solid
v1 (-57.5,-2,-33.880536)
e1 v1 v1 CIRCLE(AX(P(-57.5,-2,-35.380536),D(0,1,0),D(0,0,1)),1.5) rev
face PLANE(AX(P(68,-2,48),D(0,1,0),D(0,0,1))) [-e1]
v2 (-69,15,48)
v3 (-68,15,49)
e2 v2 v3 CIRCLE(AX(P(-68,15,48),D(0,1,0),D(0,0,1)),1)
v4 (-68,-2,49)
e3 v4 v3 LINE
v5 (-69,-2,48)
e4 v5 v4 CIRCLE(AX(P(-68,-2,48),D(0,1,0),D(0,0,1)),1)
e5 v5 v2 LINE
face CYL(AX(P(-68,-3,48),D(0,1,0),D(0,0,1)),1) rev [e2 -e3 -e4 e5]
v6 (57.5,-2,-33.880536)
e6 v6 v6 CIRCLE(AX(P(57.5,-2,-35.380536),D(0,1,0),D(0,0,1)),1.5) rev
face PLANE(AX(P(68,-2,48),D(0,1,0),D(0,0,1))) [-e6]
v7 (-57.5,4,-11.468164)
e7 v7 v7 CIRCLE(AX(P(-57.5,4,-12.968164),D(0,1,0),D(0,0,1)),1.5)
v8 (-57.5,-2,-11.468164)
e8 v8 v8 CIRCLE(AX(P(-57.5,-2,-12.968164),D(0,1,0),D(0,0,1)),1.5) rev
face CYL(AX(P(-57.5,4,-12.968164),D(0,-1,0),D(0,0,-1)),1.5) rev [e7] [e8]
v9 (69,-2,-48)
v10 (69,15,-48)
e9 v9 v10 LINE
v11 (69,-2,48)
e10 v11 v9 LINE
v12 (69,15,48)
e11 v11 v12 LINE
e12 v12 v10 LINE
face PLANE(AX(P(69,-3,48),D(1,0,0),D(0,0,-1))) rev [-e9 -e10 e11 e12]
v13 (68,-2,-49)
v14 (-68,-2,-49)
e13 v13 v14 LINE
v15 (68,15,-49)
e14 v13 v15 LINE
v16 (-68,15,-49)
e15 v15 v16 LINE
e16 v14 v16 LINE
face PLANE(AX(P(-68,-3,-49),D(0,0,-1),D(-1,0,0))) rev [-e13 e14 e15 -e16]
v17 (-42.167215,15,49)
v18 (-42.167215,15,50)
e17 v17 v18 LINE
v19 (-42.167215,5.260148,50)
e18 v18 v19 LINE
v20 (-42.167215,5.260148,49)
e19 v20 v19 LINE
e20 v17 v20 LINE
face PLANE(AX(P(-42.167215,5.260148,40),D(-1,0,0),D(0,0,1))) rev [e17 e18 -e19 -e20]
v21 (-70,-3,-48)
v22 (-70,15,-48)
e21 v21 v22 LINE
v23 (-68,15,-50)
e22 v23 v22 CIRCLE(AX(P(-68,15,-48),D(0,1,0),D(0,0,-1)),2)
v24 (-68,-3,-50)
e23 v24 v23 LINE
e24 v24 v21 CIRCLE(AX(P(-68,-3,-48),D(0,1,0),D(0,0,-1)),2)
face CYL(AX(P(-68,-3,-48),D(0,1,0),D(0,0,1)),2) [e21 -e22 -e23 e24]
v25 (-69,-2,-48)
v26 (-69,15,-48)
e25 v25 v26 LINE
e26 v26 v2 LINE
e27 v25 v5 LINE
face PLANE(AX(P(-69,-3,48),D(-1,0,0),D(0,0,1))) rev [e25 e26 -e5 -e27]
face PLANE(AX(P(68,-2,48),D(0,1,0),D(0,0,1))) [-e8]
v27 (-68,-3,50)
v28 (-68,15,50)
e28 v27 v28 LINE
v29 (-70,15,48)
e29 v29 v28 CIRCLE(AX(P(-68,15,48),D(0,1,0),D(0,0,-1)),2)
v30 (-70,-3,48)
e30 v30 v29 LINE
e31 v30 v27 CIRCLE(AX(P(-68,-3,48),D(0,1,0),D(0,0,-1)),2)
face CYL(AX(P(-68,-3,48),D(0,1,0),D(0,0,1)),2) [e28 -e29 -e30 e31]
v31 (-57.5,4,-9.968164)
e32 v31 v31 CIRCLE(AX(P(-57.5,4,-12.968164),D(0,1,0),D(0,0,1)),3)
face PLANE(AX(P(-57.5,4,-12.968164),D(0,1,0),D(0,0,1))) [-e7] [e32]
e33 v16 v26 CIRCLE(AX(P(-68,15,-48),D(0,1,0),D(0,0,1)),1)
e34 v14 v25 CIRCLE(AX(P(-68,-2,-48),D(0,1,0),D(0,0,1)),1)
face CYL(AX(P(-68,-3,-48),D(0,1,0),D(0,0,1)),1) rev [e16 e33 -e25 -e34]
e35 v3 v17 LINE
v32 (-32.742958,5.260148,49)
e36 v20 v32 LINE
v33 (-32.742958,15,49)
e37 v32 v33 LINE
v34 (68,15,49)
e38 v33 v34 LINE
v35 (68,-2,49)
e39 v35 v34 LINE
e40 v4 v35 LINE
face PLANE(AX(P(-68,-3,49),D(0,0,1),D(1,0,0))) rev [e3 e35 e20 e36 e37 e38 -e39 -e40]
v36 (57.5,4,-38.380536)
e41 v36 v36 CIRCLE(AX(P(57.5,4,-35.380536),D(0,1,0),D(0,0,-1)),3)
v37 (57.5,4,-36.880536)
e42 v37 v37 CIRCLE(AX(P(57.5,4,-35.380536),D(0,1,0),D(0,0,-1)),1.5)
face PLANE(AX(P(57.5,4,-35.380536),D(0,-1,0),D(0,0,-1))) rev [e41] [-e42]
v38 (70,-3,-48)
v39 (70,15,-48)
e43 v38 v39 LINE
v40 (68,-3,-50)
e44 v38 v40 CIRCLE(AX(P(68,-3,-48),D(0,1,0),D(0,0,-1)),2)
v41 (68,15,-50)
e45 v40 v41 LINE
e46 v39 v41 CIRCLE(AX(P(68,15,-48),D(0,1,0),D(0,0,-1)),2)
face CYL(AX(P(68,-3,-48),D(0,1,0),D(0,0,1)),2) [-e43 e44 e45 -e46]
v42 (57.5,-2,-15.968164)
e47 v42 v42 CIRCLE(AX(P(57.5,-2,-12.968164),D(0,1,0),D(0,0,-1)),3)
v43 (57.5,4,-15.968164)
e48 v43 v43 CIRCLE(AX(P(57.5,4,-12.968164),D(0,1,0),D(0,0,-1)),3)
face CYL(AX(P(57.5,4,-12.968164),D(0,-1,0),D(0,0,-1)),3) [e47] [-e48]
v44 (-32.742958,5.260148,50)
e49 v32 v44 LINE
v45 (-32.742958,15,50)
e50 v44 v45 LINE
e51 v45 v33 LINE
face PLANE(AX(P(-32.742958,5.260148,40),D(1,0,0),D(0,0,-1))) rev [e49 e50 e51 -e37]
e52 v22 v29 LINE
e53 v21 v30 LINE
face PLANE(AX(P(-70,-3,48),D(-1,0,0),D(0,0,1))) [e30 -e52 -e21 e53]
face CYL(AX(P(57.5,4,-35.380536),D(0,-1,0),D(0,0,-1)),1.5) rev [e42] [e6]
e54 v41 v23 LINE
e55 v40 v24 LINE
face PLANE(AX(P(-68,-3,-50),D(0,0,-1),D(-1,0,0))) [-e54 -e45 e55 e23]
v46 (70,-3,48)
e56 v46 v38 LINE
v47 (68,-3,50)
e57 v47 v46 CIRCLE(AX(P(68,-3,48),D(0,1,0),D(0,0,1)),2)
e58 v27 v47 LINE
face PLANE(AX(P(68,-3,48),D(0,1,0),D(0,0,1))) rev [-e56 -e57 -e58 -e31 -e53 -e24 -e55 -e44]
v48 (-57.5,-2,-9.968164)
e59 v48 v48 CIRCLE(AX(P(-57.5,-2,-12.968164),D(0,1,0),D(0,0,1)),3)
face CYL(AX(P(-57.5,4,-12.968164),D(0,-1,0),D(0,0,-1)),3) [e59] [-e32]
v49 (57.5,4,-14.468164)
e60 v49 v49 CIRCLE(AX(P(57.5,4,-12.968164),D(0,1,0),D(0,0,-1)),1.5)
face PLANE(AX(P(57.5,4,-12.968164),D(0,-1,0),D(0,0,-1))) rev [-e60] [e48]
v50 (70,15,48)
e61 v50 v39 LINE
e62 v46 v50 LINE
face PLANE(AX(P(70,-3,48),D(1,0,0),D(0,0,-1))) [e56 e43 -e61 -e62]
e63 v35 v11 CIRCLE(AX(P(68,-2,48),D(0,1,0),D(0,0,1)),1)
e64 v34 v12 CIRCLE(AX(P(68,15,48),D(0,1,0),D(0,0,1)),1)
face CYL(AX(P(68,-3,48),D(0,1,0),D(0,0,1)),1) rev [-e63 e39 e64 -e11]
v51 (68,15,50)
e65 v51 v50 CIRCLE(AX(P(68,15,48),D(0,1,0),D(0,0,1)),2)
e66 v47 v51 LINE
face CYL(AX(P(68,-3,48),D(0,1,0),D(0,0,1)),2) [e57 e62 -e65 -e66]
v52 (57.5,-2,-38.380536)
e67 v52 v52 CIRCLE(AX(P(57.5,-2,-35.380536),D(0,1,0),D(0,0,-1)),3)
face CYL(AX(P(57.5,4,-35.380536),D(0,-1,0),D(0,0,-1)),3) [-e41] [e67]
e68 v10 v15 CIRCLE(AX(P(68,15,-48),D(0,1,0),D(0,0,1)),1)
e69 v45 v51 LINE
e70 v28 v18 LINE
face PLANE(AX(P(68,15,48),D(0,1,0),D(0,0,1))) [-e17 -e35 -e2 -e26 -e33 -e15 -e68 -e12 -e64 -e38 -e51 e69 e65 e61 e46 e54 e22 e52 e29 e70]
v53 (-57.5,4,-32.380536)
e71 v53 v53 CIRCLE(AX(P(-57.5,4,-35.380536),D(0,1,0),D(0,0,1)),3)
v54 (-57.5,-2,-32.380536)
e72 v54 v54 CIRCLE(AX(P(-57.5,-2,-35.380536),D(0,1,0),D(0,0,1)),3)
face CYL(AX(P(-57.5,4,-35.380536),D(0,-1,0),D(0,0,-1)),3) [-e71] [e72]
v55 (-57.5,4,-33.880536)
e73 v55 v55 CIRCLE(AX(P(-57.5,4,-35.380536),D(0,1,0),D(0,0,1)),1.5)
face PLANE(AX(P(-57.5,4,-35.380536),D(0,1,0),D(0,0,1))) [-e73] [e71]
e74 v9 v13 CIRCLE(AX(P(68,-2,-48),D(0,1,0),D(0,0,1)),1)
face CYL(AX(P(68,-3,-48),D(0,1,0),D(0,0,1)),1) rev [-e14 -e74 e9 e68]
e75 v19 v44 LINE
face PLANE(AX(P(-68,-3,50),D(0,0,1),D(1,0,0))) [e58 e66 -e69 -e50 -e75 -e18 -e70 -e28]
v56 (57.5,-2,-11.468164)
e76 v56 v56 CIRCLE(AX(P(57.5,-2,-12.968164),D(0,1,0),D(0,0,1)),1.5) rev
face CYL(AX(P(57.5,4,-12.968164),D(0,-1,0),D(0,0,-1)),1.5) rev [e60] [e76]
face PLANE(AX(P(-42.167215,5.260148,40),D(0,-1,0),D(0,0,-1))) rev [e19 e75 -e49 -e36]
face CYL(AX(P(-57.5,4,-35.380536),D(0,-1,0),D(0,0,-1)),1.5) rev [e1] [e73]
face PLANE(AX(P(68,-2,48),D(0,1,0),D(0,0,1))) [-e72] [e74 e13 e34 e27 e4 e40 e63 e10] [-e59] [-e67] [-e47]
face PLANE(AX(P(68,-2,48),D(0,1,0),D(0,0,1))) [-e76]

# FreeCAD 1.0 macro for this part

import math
import FreeCAD as App
import Part
import Sketcher
from FreeCAD import Vector


def faces_at(feature, points):
    """Names of the faces that lie closest to the given points."""
    faces = feature.Shape.Faces
    near = lambda p: min(range(len(faces)), key=lambda i: faces[i].distToShape(Part.Vertex(*p))[0])
    return sorted({f"Face{near(p) + 1}" for p in points})


def add_polygon(sketch, points):
    """Adds a closed chain of lines whose ends are joined by coincident constraints."""
    first, n = sketch.GeometryCount, len(points)
    for a, b in zip(points, points[1:] + points[:1]):
        sketch.addGeometry(Part.LineSegment(App.Vector(*a, 0), App.Vector(*b, 0)), False)
    for i in range(n):
        sketch.addConstraint(Sketcher.Constraint("Coincident", first + i, 2, first + (i + 1) % n, 1))

doc = App.newDocument("Part")
body = doc.addObject("PartDesign::Body", "Body")

sketch1 = body.newObject("Sketcher::SketchObject", "Sketch")
sketch1.AttachmentSupport = (doc.getObject("XZ_Plane"), [""])
sketch1.MapMode = "FlatFace"
sketch1.addGeometry([
    Part.LineSegment(Vector(-68, 50, 0), Vector(68, 50, 0)),
    Part.ArcOfCircle(Part.Circle(Vector(68, 48, 0), Vector(0, 0, 1), 2), math.radians(0), math.radians(90)),
    Part.LineSegment(Vector(70, 48, 0), Vector(70, -48, 0)),
    Part.ArcOfCircle(Part.Circle(Vector(68, -48, 0), Vector(0, 0, 1), 2), math.radians(-90), math.radians(0)),
    Part.LineSegment(Vector(68, -50, 0), Vector(-68, -50, 0)),
    Part.ArcOfCircle(Part.Circle(Vector(-68, -48, 0), Vector(0, 0, 1), 2), math.radians(-180), math.radians(-90)),
    Part.LineSegment(Vector(-70, -48, 0), Vector(-70, 48, 0)),
    Part.ArcOfCircle(Part.Circle(Vector(-68, 48, 0), Vector(0, 0, 1), 2), math.radians(90), math.radians(180)),
], False)
sketch1.addConstraint([
    Sketcher.Constraint("Tangent", 0, 2, 1, 2),
    Sketcher.Constraint("Tangent", 1, 1, 2, 1),
    Sketcher.Constraint("Tangent", 2, 2, 3, 2),
    Sketcher.Constraint("Tangent", 3, 1, 4, 1),
    Sketcher.Constraint("Tangent", 4, 2, 5, 2),
    Sketcher.Constraint("Tangent", 5, 1, 6, 1),
    Sketcher.Constraint("Tangent", 6, 2, 7, 2),
    Sketcher.Constraint("Tangent", 7, 1, 0, 1),
    Sketcher.Constraint("Horizontal", 0),
    Sketcher.Constraint("Vertical", 2),
    Sketcher.Constraint("Horizontal", 4),
    Sketcher.Constraint("Vertical", 6),
    Sketcher.Constraint("Equal", 1, 3),
    Sketcher.Constraint("Equal", 3, 5),
    Sketcher.Constraint("Equal", 5, 7),
    Sketcher.Constraint("Symmetric", 1, 3, 5, 3, -1, 1),
    Sketcher.Constraint("Radius", 1, 2.0),
    Sketcher.Constraint("DistanceX", 0, 1, 0, 2, 136.0),
    Sketcher.Constraint("DistanceY", 2, 2, 2, 1, 96.0),
])
pad1 = body.newObject("PartDesign::Pad", "Pad")
pad1.Profile = sketch1
pad1.Type = "TwoLengths"
pad1.Length = 15
pad1.Length2 = 3
pad1.Reversed = True
doc.recompute()

thickness = body.newObject("PartDesign::Thickness", "Thickness")
thickness.Base = (pad1, faces_at(pad1, [(0, 15, 0)]))
thickness.Value = 1
thickness.Reversed = True
thickness.Join = "Intersection"

sketch2 = body.newObject("Sketcher::SketchObject", "Sketch001")
sketch2.AttachmentSupport = (doc.getObject("XZ_Plane"), [""])
sketch2.MapMode = "FlatFace"
sketch2.AttachmentOffset = App.Placement(Vector(0, 0, 2), App.Rotation())
sketch2.addGeometry([
    Part.Circle(Vector(-57.5, -35.4, 0), Vector(0, 0, 1), 3),
    Part.Circle(Vector(-57.5, -35.4, 0), Vector(0, 0, 1), 1.5),
    Part.Circle(Vector(-57.5, -13, 0), Vector(0, 0, 1), 3),
    Part.Circle(Vector(-57.5, -13, 0), Vector(0, 0, 1), 1.5),
    Part.Circle(Vector(57.5, -13, 0), Vector(0, 0, 1), 3),
    Part.Circle(Vector(57.5, -13, 0), Vector(0, 0, 1), 1.5),
    Part.Circle(Vector(57.5, -35.4, 0), Vector(0, 0, 1), 3),
    Part.Circle(Vector(57.5, -35.4, 0), Vector(0, 0, 1), 1.5),
], False)
sketch2.addConstraint([
    Sketcher.Constraint("Coincident", 1, 3, 0, 3),
    Sketcher.Constraint("Coincident", 3, 3, 2, 3),
    Sketcher.Constraint("Coincident", 5, 3, 4, 3),
    Sketcher.Constraint("Coincident", 7, 3, 6, 3),
    Sketcher.Constraint("Equal", 0, 2),
    Sketcher.Constraint("Equal", 1, 3),
    Sketcher.Constraint("Equal", 2, 4),
    Sketcher.Constraint("Equal", 3, 5),
    Sketcher.Constraint("Equal", 4, 6),
    Sketcher.Constraint("Equal", 5, 7),
    Sketcher.Constraint("Symmetric", 2, 3, 4, 3, -2),
    Sketcher.Constraint("Symmetric", 0, 3, 6, 3, -2),
    Sketcher.Constraint("Vertical", 1, 3, 2, 3),
    Sketcher.Constraint("Diameter", 0, 6.0),
    Sketcher.Constraint("Diameter", 1, 3.0),
    Sketcher.Constraint("DistanceX", 2, 3, 4, 3, 115.0),
    Sketcher.Constraint("DistanceY", 0, 3, 2, 3, 22.412371),
    Sketcher.Constraint("DistanceY", 0, 3, -1, 1, 35.380536),
])
pad2 = body.newObject("PartDesign::Pad", "Pad001")
pad2.Profile = sketch2
pad2.Length = 6
pad2.Reversed = True

sketch3 = body.newObject("Sketcher::SketchObject", "Sketch002")
sketch3.AttachmentSupport = (doc.getObject("XY_Plane"), [""])
sketch3.MapMode = "FlatFace"
sketch3.AttachmentOffset = App.Placement(Vector(0, 0, 50), App.Rotation())
add_polygon(sketch3, [(-42, 16), (-42, 5), (-33, 5), (-33, 16)])
sketch3.addConstraint([
    Sketcher.Constraint("Vertical", 0),
    Sketcher.Constraint("Horizontal", 1),
    Sketcher.Constraint("Vertical", 2),
    Sketcher.Constraint("Horizontal", 3),
    Sketcher.Constraint("DistanceX", 1, 1, 1, 2, 9.424258),
    Sketcher.Constraint("DistanceY", 0, 2, 0, 1, 10.522525),
    Sketcher.Constraint("DistanceY", -1, 1, 0, 2, 5.260148),
    Sketcher.Constraint("DistanceX", 0, 2, -1, 1, 42.167215),
])
pocket1 = body.newObject("PartDesign::Pocket", "Pocket")
pocket1.Profile = sketch3
pocket1.Length = 10

doc.recompute()
